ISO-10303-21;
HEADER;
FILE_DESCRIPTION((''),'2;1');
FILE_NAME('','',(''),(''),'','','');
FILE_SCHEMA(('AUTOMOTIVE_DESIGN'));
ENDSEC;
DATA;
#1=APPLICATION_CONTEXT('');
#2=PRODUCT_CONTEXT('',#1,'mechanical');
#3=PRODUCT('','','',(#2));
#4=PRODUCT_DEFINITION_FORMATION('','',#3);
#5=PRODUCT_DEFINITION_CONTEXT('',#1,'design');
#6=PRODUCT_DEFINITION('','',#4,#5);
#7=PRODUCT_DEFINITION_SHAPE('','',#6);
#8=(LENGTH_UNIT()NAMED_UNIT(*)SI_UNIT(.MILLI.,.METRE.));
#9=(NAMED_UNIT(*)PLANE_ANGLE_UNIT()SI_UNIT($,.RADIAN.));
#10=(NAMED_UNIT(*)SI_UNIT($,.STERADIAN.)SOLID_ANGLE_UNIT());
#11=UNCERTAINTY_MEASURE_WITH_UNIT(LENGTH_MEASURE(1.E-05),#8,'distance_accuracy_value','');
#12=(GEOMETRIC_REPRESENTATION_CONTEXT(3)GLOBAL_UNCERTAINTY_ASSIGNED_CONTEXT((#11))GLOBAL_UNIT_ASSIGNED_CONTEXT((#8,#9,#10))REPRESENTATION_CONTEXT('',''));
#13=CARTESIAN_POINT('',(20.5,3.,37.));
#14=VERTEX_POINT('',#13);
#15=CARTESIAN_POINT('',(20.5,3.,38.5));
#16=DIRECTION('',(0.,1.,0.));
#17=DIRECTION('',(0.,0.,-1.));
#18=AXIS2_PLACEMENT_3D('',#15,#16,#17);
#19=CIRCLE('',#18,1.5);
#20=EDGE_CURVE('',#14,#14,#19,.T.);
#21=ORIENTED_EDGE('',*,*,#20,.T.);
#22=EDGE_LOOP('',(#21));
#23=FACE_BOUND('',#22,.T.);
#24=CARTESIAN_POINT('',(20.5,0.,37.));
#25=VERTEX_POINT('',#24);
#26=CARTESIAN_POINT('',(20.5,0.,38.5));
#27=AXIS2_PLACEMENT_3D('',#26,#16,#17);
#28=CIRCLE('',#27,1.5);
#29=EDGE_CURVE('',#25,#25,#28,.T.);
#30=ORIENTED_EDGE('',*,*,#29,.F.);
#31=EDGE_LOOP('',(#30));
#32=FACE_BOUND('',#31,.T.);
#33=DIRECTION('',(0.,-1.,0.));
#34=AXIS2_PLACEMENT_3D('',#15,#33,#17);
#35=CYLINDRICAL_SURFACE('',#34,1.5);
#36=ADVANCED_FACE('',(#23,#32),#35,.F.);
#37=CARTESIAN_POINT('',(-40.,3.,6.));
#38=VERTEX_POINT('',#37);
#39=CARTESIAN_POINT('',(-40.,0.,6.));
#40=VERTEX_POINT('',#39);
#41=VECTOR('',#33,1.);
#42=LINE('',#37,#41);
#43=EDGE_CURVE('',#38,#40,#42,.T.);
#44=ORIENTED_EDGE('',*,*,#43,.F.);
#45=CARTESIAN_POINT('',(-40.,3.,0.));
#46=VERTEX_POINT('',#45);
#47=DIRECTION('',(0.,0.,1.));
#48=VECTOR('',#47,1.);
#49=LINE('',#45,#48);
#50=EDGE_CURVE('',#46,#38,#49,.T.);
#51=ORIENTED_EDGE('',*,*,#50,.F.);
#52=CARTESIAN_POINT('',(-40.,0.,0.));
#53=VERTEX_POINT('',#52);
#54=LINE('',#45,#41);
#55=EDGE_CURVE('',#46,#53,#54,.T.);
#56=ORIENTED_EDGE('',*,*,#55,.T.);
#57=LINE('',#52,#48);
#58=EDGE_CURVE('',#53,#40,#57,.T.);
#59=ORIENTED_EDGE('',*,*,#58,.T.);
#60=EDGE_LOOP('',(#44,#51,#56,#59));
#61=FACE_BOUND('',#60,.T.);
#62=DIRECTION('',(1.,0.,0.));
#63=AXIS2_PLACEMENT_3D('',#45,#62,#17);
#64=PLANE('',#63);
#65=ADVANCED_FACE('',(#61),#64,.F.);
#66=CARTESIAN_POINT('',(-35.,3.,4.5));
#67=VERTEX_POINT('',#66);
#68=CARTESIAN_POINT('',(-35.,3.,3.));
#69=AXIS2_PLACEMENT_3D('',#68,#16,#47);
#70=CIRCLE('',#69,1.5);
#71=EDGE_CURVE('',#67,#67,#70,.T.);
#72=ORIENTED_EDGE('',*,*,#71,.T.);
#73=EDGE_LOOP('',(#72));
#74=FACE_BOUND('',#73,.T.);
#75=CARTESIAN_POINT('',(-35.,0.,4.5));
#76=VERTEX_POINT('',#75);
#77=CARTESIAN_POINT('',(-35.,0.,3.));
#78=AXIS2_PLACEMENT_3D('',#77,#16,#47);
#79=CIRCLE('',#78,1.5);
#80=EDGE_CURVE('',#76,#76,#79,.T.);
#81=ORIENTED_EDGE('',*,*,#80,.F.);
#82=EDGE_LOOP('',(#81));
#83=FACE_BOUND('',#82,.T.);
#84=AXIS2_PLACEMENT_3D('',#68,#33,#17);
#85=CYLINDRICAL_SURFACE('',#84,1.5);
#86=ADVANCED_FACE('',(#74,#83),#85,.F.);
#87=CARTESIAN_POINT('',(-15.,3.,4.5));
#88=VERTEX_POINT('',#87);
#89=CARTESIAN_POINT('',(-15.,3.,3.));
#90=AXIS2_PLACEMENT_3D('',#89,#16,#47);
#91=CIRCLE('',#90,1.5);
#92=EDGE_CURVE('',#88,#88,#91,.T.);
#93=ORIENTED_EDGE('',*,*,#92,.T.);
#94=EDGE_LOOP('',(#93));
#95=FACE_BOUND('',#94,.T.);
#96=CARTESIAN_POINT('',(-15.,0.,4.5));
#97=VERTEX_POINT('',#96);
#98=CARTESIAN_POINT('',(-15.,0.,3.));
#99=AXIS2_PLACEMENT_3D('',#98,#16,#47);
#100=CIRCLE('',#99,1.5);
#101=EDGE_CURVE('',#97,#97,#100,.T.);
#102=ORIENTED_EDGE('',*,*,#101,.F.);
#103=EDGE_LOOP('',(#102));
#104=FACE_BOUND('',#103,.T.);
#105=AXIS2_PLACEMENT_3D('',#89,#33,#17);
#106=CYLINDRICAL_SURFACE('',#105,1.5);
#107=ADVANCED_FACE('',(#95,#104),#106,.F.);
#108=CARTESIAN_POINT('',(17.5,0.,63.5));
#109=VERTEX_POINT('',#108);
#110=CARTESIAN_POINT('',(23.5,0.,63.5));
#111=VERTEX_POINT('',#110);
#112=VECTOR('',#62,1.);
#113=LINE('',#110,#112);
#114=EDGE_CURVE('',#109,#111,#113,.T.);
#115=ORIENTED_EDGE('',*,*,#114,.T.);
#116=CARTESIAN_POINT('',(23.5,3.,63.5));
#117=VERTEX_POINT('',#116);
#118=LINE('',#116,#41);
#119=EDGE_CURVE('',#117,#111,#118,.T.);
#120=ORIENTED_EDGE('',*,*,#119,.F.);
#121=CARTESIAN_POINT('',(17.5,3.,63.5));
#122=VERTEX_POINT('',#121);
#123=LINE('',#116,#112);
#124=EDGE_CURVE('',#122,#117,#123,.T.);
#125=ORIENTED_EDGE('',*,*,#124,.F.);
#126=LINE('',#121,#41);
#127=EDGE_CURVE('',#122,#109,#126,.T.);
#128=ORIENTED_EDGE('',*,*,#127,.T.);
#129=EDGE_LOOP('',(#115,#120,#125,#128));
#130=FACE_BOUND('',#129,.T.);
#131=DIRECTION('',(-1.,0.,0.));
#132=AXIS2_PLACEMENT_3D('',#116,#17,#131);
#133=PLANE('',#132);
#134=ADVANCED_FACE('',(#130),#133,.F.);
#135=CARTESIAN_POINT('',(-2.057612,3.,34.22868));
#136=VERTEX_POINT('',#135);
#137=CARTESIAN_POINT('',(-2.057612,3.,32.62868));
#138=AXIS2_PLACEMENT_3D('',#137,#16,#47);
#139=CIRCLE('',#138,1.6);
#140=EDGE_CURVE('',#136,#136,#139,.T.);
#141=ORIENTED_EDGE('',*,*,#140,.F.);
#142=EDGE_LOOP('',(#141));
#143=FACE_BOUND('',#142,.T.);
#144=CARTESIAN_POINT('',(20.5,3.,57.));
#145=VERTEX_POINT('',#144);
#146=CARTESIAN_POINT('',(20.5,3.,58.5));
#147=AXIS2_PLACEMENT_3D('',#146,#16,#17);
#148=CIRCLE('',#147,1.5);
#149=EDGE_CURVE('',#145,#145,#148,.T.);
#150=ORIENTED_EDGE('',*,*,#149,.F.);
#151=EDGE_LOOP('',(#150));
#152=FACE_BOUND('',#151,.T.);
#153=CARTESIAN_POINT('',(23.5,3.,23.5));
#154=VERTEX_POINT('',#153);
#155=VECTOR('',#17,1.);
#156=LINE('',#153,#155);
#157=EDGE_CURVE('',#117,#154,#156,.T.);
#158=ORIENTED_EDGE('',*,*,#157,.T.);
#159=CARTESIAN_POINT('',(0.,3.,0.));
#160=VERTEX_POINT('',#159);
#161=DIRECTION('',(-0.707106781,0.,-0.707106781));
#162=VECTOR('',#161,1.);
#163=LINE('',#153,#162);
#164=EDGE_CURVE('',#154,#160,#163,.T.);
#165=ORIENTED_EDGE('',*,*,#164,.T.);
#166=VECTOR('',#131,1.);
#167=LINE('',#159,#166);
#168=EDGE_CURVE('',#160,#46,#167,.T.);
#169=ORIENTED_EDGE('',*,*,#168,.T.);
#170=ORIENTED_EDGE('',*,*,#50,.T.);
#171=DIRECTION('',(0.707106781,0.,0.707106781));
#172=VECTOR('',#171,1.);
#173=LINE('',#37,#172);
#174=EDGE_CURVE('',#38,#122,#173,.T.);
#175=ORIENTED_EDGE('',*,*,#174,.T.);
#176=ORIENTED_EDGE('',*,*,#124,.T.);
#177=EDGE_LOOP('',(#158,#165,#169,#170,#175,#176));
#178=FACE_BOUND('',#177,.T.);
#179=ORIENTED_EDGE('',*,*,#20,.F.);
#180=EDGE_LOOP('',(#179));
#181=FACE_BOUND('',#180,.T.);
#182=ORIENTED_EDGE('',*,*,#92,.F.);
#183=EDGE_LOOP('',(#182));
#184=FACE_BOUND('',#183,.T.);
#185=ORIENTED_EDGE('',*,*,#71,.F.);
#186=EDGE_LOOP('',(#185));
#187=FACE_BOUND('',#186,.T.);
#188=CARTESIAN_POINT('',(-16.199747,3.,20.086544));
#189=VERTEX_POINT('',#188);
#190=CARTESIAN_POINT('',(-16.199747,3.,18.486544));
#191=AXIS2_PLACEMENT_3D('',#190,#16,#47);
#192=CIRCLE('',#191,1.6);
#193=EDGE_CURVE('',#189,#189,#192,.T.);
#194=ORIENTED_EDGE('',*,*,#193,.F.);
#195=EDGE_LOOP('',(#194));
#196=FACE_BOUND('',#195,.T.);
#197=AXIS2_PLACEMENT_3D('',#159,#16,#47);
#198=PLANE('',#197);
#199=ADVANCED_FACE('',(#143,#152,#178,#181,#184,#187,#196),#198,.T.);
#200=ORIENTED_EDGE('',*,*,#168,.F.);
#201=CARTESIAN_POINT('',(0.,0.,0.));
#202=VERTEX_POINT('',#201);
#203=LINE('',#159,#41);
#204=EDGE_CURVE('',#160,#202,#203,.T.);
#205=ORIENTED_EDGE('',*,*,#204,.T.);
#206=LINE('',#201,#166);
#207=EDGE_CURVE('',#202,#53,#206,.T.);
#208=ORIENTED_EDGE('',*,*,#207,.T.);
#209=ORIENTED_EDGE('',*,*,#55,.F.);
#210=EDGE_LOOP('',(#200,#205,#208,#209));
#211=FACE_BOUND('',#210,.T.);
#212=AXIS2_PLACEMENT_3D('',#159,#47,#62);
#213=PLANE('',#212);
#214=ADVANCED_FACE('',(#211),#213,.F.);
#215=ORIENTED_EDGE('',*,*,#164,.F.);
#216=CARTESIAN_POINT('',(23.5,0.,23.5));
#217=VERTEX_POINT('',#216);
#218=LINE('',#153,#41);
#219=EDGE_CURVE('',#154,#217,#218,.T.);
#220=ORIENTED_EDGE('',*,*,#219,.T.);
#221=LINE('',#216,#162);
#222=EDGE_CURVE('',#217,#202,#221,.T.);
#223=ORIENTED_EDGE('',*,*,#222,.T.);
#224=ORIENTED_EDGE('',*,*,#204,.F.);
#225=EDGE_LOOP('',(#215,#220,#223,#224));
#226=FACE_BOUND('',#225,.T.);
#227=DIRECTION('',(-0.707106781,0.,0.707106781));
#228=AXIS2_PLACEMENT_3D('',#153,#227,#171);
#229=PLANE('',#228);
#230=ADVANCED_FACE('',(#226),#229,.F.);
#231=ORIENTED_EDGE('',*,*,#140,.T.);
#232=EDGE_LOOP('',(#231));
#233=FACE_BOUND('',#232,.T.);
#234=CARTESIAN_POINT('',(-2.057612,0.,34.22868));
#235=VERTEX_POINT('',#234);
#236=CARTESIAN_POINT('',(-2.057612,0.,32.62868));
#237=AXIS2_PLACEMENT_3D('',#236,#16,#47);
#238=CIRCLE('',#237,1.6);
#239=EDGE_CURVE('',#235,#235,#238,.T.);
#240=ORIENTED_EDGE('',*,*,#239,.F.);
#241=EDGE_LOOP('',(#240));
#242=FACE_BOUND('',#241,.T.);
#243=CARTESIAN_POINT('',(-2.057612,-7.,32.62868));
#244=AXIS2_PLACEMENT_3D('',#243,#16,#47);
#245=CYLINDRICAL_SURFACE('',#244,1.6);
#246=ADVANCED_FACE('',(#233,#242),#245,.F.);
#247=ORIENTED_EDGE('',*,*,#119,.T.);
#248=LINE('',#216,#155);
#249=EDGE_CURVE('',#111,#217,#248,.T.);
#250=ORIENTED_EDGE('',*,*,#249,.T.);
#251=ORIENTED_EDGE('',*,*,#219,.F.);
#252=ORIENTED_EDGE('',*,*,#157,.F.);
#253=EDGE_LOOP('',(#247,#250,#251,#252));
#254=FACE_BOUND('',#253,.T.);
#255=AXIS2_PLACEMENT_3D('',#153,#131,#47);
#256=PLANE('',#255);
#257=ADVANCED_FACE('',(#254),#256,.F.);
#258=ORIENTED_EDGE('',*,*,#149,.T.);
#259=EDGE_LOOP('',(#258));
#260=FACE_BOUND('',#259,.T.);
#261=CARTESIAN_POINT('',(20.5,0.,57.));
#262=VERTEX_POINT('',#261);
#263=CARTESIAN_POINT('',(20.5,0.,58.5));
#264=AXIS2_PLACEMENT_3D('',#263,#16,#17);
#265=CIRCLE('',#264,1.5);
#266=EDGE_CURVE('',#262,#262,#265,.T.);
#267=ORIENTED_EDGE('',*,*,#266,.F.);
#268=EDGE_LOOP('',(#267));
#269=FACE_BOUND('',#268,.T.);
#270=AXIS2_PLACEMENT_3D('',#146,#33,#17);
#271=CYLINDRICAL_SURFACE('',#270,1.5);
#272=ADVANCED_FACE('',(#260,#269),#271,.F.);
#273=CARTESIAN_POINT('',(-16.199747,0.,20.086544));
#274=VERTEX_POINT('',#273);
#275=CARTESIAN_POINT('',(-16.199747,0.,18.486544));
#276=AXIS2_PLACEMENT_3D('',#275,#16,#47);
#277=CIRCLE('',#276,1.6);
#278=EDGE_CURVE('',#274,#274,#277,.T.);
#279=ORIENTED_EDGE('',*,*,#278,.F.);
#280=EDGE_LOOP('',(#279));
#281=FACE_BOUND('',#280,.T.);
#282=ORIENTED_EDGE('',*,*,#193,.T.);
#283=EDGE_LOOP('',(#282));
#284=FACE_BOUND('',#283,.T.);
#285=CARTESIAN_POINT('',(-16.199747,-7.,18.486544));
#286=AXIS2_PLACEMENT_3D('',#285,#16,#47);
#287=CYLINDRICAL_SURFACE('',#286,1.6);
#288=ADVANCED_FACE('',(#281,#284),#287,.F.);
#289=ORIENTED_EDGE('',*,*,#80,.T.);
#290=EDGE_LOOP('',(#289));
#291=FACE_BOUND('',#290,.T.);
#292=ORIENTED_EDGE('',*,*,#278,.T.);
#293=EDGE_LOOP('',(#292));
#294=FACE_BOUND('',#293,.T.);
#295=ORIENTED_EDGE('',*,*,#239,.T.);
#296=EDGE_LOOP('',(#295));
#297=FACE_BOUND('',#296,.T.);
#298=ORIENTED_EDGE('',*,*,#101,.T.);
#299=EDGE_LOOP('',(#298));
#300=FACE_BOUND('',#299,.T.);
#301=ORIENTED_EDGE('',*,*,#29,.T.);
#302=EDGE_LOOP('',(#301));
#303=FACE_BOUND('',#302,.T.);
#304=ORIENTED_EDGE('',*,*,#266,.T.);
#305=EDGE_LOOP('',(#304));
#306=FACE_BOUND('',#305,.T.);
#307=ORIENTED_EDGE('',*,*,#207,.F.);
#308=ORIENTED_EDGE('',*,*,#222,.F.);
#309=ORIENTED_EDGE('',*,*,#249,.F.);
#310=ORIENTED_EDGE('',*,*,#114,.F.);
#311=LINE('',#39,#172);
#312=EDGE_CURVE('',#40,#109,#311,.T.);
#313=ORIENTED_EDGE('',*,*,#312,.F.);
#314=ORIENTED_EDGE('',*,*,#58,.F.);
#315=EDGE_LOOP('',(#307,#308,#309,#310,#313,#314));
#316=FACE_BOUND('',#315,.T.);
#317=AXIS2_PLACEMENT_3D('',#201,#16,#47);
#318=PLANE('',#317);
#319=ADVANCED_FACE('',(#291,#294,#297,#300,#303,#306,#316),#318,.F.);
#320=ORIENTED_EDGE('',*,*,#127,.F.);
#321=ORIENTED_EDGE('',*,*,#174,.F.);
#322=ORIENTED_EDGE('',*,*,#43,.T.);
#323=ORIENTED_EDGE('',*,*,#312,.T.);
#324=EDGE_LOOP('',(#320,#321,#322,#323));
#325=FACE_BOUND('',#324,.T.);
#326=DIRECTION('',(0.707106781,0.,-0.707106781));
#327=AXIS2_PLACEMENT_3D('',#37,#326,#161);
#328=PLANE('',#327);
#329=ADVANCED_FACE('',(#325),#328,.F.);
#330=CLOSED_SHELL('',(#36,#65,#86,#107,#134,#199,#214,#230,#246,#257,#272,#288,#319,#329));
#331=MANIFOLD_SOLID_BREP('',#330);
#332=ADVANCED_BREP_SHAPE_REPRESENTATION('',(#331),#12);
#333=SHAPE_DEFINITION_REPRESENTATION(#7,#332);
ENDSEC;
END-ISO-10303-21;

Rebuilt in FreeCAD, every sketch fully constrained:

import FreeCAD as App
import Part
import Sketcher

V = App.Vector
Q = App.Units.Quantity


def add_polygon(sketch, points):
    """Adds a closed chain of lines whose ends are joined by coincident constraints."""
    first, n = sketch.GeometryCount, len(points)
    for a, b in zip(points, points[1:] + points[:1]):
        sketch.addGeometry(Part.LineSegment(App.Vector(*a, 0), App.Vector(*b, 0)), False)
    for i in range(n):
        sketch.addConstraint(Sketcher.Constraint("Coincident", first + i, 2, first + (i + 1) % n, 1))

doc = App.newDocument("Part")
params = doc.addObject("Spreadsheet::Sheet", "Params")
for row, (alias, value) in enumerate([
    ("sketch1_diameter", "3 mm"),
    ("sketch1_width", "40 mm"),
    ("sketch1_width2", "6 mm"),
    ("pad1_length", "3 mm"),
    ("sketch2_diameter", "3.2 mm"),
    ("pocket1_length", "10 mm"),
], start=1):
    params.set(f"A{row}", alias)
    params.set(f"B{row}", "=" + value)
    params.setAlias(f"B{row}", alias)

body = doc.addObject("PartDesign::Body", "Body")

sketch1 = body.newObject("Sketcher::SketchObject", "Sketch")
sketch1.AttachmentSupport = (doc.getObject("XZ_Plane"), [""])
sketch1.MapMode = "FlatFace"
add_polygon(sketch1, [(0, 0), (-40, 0), (-40, 6), (17.5, 63.5), (23.5, 63.5), (23.5, 23.5)])
sketch1.addGeometry(Part.Circle(V(20.5, 58.5, 0), V(0, 0, 1), 1.5), False)
sketch1.addGeometry(Part.Circle(V(20.5, 38.5, 0), V(0, 0, 1), 1.5), False)
sketch1.addGeometry(Part.Circle(V(-35, 3, 0), V(0, 0, 1), 1.5), False)
sketch1.addGeometry(Part.Circle(V(-15, 3, 0), V(0, 0, 1), 1.5), False)
sketch1.addConstraint([
    Sketcher.Constraint("Horizontal", 0),
    Sketcher.Constraint("Vertical", 1),
    Sketcher.Constraint("Horizontal", 3),
    Sketcher.Constraint("Vertical", 4),
    Sketcher.Constraint("Coincident", 5, 2, -1, 1),
    Sketcher.Constraint("Equal", 6, 7),
    Sketcher.Constraint("Equal", 7, 8),
    Sketcher.Constraint("Equal", 8, 9),
    Sketcher.Constraint("Parallel", 2, 5),
    Sketcher.Constraint("Horizontal", 8, 3, 9, 3),
    Sketcher.Constraint("Vertical", 6, 3, 7, 3),
    Sketcher.Constraint("Equal", 3, 1),
    Sketcher.Constraint("Equal", 0, 4),
    Sketcher.Constraint("Diameter", 6, Q("3 mm")),
    Sketcher.Constraint("DistanceX", 0, 2, 0, 1, Q("40 mm")),
    Sketcher.Constraint("DistanceX", 3, 1, 3, 2, Q("6 mm")),
    Sketcher.Constraint("DistanceX", 8, 3, -1, 1, Q("35 mm")),
    Sketcher.Constraint("DistanceY", -1, 1, 8, 3, Q("3 mm")),
    Sketcher.Constraint("DistanceX", 9, 3, -1, 1, Q("15 mm")),
    Sketcher.Constraint("DistanceY", 7, 3, 6, 3, Q("20 mm")),
    Sketcher.Constraint("DistanceX", 2, 2, 6, 3, Q("3 mm")),
    Sketcher.Constraint("DistanceY", 6, 3, 2, 2, Q("5 mm")),
    Sketcher.Constraint("DistanceX", -1, 1, 6, 3, Q("20.5 mm")),
])
sketch1.setExpression("Constraints[19]", "Params.sketch1_diameter")
sketch1.setExpression("Constraints[20]", "Params.sketch1_width")
sketch1.setExpression("Constraints[21]", "Params.sketch1_width2")
pad1 = body.newObject("PartDesign::Pad", "Pad")
pad1.Profile = sketch1
pad1.setExpression("Length", "Params.pad1_length")
pad1.Reversed = True

sketch2 = body.newObject("Sketcher::SketchObject", "Sketch001")
sketch2.AttachmentSupport = (doc.getObject("XZ_Plane"), [""])
sketch2.MapMode = "FlatFace"
sketch2.AttachmentOffset = App.Placement(V(0, 0, -3), App.Rotation())
sketch2.addGeometry([
    Part.Circle(V(-16.199747, 18.486544, 0), V(0, 0, 1), 1.6),
    Part.Circle(V(-2.057612, 32.62868, 0), V(0, 0, 1), 1.6),
], False)
sketch2.addConstraint([
    Sketcher.Constraint("Equal", 0, 1),
    Sketcher.Constraint("Diameter", 0, Q("3.2 mm")),
    Sketcher.Constraint("DistanceX", 1, 3, -1, 1, Q("2.057612 mm")),
    Sketcher.Constraint("DistanceY", -1, 1, 1, 3, Q("32.62868 mm")),
    Sketcher.Constraint("DistanceX", 0, 3, -1, 1, Q("16.199747 mm")),
    Sketcher.Constraint("DistanceY", -1, 1, 0, 3, Q("18.486544 mm")),
])
sketch2.setExpression("Constraints[1]", "Params.sketch2_diameter")
pocket1 = body.newObject("PartDesign::Pocket", "Pocket")
pocket1.Profile = sketch2
pocket1.setExpression("Length", "Params.pocket1_length")
pocket1.Reversed = True

doc.recompute()
